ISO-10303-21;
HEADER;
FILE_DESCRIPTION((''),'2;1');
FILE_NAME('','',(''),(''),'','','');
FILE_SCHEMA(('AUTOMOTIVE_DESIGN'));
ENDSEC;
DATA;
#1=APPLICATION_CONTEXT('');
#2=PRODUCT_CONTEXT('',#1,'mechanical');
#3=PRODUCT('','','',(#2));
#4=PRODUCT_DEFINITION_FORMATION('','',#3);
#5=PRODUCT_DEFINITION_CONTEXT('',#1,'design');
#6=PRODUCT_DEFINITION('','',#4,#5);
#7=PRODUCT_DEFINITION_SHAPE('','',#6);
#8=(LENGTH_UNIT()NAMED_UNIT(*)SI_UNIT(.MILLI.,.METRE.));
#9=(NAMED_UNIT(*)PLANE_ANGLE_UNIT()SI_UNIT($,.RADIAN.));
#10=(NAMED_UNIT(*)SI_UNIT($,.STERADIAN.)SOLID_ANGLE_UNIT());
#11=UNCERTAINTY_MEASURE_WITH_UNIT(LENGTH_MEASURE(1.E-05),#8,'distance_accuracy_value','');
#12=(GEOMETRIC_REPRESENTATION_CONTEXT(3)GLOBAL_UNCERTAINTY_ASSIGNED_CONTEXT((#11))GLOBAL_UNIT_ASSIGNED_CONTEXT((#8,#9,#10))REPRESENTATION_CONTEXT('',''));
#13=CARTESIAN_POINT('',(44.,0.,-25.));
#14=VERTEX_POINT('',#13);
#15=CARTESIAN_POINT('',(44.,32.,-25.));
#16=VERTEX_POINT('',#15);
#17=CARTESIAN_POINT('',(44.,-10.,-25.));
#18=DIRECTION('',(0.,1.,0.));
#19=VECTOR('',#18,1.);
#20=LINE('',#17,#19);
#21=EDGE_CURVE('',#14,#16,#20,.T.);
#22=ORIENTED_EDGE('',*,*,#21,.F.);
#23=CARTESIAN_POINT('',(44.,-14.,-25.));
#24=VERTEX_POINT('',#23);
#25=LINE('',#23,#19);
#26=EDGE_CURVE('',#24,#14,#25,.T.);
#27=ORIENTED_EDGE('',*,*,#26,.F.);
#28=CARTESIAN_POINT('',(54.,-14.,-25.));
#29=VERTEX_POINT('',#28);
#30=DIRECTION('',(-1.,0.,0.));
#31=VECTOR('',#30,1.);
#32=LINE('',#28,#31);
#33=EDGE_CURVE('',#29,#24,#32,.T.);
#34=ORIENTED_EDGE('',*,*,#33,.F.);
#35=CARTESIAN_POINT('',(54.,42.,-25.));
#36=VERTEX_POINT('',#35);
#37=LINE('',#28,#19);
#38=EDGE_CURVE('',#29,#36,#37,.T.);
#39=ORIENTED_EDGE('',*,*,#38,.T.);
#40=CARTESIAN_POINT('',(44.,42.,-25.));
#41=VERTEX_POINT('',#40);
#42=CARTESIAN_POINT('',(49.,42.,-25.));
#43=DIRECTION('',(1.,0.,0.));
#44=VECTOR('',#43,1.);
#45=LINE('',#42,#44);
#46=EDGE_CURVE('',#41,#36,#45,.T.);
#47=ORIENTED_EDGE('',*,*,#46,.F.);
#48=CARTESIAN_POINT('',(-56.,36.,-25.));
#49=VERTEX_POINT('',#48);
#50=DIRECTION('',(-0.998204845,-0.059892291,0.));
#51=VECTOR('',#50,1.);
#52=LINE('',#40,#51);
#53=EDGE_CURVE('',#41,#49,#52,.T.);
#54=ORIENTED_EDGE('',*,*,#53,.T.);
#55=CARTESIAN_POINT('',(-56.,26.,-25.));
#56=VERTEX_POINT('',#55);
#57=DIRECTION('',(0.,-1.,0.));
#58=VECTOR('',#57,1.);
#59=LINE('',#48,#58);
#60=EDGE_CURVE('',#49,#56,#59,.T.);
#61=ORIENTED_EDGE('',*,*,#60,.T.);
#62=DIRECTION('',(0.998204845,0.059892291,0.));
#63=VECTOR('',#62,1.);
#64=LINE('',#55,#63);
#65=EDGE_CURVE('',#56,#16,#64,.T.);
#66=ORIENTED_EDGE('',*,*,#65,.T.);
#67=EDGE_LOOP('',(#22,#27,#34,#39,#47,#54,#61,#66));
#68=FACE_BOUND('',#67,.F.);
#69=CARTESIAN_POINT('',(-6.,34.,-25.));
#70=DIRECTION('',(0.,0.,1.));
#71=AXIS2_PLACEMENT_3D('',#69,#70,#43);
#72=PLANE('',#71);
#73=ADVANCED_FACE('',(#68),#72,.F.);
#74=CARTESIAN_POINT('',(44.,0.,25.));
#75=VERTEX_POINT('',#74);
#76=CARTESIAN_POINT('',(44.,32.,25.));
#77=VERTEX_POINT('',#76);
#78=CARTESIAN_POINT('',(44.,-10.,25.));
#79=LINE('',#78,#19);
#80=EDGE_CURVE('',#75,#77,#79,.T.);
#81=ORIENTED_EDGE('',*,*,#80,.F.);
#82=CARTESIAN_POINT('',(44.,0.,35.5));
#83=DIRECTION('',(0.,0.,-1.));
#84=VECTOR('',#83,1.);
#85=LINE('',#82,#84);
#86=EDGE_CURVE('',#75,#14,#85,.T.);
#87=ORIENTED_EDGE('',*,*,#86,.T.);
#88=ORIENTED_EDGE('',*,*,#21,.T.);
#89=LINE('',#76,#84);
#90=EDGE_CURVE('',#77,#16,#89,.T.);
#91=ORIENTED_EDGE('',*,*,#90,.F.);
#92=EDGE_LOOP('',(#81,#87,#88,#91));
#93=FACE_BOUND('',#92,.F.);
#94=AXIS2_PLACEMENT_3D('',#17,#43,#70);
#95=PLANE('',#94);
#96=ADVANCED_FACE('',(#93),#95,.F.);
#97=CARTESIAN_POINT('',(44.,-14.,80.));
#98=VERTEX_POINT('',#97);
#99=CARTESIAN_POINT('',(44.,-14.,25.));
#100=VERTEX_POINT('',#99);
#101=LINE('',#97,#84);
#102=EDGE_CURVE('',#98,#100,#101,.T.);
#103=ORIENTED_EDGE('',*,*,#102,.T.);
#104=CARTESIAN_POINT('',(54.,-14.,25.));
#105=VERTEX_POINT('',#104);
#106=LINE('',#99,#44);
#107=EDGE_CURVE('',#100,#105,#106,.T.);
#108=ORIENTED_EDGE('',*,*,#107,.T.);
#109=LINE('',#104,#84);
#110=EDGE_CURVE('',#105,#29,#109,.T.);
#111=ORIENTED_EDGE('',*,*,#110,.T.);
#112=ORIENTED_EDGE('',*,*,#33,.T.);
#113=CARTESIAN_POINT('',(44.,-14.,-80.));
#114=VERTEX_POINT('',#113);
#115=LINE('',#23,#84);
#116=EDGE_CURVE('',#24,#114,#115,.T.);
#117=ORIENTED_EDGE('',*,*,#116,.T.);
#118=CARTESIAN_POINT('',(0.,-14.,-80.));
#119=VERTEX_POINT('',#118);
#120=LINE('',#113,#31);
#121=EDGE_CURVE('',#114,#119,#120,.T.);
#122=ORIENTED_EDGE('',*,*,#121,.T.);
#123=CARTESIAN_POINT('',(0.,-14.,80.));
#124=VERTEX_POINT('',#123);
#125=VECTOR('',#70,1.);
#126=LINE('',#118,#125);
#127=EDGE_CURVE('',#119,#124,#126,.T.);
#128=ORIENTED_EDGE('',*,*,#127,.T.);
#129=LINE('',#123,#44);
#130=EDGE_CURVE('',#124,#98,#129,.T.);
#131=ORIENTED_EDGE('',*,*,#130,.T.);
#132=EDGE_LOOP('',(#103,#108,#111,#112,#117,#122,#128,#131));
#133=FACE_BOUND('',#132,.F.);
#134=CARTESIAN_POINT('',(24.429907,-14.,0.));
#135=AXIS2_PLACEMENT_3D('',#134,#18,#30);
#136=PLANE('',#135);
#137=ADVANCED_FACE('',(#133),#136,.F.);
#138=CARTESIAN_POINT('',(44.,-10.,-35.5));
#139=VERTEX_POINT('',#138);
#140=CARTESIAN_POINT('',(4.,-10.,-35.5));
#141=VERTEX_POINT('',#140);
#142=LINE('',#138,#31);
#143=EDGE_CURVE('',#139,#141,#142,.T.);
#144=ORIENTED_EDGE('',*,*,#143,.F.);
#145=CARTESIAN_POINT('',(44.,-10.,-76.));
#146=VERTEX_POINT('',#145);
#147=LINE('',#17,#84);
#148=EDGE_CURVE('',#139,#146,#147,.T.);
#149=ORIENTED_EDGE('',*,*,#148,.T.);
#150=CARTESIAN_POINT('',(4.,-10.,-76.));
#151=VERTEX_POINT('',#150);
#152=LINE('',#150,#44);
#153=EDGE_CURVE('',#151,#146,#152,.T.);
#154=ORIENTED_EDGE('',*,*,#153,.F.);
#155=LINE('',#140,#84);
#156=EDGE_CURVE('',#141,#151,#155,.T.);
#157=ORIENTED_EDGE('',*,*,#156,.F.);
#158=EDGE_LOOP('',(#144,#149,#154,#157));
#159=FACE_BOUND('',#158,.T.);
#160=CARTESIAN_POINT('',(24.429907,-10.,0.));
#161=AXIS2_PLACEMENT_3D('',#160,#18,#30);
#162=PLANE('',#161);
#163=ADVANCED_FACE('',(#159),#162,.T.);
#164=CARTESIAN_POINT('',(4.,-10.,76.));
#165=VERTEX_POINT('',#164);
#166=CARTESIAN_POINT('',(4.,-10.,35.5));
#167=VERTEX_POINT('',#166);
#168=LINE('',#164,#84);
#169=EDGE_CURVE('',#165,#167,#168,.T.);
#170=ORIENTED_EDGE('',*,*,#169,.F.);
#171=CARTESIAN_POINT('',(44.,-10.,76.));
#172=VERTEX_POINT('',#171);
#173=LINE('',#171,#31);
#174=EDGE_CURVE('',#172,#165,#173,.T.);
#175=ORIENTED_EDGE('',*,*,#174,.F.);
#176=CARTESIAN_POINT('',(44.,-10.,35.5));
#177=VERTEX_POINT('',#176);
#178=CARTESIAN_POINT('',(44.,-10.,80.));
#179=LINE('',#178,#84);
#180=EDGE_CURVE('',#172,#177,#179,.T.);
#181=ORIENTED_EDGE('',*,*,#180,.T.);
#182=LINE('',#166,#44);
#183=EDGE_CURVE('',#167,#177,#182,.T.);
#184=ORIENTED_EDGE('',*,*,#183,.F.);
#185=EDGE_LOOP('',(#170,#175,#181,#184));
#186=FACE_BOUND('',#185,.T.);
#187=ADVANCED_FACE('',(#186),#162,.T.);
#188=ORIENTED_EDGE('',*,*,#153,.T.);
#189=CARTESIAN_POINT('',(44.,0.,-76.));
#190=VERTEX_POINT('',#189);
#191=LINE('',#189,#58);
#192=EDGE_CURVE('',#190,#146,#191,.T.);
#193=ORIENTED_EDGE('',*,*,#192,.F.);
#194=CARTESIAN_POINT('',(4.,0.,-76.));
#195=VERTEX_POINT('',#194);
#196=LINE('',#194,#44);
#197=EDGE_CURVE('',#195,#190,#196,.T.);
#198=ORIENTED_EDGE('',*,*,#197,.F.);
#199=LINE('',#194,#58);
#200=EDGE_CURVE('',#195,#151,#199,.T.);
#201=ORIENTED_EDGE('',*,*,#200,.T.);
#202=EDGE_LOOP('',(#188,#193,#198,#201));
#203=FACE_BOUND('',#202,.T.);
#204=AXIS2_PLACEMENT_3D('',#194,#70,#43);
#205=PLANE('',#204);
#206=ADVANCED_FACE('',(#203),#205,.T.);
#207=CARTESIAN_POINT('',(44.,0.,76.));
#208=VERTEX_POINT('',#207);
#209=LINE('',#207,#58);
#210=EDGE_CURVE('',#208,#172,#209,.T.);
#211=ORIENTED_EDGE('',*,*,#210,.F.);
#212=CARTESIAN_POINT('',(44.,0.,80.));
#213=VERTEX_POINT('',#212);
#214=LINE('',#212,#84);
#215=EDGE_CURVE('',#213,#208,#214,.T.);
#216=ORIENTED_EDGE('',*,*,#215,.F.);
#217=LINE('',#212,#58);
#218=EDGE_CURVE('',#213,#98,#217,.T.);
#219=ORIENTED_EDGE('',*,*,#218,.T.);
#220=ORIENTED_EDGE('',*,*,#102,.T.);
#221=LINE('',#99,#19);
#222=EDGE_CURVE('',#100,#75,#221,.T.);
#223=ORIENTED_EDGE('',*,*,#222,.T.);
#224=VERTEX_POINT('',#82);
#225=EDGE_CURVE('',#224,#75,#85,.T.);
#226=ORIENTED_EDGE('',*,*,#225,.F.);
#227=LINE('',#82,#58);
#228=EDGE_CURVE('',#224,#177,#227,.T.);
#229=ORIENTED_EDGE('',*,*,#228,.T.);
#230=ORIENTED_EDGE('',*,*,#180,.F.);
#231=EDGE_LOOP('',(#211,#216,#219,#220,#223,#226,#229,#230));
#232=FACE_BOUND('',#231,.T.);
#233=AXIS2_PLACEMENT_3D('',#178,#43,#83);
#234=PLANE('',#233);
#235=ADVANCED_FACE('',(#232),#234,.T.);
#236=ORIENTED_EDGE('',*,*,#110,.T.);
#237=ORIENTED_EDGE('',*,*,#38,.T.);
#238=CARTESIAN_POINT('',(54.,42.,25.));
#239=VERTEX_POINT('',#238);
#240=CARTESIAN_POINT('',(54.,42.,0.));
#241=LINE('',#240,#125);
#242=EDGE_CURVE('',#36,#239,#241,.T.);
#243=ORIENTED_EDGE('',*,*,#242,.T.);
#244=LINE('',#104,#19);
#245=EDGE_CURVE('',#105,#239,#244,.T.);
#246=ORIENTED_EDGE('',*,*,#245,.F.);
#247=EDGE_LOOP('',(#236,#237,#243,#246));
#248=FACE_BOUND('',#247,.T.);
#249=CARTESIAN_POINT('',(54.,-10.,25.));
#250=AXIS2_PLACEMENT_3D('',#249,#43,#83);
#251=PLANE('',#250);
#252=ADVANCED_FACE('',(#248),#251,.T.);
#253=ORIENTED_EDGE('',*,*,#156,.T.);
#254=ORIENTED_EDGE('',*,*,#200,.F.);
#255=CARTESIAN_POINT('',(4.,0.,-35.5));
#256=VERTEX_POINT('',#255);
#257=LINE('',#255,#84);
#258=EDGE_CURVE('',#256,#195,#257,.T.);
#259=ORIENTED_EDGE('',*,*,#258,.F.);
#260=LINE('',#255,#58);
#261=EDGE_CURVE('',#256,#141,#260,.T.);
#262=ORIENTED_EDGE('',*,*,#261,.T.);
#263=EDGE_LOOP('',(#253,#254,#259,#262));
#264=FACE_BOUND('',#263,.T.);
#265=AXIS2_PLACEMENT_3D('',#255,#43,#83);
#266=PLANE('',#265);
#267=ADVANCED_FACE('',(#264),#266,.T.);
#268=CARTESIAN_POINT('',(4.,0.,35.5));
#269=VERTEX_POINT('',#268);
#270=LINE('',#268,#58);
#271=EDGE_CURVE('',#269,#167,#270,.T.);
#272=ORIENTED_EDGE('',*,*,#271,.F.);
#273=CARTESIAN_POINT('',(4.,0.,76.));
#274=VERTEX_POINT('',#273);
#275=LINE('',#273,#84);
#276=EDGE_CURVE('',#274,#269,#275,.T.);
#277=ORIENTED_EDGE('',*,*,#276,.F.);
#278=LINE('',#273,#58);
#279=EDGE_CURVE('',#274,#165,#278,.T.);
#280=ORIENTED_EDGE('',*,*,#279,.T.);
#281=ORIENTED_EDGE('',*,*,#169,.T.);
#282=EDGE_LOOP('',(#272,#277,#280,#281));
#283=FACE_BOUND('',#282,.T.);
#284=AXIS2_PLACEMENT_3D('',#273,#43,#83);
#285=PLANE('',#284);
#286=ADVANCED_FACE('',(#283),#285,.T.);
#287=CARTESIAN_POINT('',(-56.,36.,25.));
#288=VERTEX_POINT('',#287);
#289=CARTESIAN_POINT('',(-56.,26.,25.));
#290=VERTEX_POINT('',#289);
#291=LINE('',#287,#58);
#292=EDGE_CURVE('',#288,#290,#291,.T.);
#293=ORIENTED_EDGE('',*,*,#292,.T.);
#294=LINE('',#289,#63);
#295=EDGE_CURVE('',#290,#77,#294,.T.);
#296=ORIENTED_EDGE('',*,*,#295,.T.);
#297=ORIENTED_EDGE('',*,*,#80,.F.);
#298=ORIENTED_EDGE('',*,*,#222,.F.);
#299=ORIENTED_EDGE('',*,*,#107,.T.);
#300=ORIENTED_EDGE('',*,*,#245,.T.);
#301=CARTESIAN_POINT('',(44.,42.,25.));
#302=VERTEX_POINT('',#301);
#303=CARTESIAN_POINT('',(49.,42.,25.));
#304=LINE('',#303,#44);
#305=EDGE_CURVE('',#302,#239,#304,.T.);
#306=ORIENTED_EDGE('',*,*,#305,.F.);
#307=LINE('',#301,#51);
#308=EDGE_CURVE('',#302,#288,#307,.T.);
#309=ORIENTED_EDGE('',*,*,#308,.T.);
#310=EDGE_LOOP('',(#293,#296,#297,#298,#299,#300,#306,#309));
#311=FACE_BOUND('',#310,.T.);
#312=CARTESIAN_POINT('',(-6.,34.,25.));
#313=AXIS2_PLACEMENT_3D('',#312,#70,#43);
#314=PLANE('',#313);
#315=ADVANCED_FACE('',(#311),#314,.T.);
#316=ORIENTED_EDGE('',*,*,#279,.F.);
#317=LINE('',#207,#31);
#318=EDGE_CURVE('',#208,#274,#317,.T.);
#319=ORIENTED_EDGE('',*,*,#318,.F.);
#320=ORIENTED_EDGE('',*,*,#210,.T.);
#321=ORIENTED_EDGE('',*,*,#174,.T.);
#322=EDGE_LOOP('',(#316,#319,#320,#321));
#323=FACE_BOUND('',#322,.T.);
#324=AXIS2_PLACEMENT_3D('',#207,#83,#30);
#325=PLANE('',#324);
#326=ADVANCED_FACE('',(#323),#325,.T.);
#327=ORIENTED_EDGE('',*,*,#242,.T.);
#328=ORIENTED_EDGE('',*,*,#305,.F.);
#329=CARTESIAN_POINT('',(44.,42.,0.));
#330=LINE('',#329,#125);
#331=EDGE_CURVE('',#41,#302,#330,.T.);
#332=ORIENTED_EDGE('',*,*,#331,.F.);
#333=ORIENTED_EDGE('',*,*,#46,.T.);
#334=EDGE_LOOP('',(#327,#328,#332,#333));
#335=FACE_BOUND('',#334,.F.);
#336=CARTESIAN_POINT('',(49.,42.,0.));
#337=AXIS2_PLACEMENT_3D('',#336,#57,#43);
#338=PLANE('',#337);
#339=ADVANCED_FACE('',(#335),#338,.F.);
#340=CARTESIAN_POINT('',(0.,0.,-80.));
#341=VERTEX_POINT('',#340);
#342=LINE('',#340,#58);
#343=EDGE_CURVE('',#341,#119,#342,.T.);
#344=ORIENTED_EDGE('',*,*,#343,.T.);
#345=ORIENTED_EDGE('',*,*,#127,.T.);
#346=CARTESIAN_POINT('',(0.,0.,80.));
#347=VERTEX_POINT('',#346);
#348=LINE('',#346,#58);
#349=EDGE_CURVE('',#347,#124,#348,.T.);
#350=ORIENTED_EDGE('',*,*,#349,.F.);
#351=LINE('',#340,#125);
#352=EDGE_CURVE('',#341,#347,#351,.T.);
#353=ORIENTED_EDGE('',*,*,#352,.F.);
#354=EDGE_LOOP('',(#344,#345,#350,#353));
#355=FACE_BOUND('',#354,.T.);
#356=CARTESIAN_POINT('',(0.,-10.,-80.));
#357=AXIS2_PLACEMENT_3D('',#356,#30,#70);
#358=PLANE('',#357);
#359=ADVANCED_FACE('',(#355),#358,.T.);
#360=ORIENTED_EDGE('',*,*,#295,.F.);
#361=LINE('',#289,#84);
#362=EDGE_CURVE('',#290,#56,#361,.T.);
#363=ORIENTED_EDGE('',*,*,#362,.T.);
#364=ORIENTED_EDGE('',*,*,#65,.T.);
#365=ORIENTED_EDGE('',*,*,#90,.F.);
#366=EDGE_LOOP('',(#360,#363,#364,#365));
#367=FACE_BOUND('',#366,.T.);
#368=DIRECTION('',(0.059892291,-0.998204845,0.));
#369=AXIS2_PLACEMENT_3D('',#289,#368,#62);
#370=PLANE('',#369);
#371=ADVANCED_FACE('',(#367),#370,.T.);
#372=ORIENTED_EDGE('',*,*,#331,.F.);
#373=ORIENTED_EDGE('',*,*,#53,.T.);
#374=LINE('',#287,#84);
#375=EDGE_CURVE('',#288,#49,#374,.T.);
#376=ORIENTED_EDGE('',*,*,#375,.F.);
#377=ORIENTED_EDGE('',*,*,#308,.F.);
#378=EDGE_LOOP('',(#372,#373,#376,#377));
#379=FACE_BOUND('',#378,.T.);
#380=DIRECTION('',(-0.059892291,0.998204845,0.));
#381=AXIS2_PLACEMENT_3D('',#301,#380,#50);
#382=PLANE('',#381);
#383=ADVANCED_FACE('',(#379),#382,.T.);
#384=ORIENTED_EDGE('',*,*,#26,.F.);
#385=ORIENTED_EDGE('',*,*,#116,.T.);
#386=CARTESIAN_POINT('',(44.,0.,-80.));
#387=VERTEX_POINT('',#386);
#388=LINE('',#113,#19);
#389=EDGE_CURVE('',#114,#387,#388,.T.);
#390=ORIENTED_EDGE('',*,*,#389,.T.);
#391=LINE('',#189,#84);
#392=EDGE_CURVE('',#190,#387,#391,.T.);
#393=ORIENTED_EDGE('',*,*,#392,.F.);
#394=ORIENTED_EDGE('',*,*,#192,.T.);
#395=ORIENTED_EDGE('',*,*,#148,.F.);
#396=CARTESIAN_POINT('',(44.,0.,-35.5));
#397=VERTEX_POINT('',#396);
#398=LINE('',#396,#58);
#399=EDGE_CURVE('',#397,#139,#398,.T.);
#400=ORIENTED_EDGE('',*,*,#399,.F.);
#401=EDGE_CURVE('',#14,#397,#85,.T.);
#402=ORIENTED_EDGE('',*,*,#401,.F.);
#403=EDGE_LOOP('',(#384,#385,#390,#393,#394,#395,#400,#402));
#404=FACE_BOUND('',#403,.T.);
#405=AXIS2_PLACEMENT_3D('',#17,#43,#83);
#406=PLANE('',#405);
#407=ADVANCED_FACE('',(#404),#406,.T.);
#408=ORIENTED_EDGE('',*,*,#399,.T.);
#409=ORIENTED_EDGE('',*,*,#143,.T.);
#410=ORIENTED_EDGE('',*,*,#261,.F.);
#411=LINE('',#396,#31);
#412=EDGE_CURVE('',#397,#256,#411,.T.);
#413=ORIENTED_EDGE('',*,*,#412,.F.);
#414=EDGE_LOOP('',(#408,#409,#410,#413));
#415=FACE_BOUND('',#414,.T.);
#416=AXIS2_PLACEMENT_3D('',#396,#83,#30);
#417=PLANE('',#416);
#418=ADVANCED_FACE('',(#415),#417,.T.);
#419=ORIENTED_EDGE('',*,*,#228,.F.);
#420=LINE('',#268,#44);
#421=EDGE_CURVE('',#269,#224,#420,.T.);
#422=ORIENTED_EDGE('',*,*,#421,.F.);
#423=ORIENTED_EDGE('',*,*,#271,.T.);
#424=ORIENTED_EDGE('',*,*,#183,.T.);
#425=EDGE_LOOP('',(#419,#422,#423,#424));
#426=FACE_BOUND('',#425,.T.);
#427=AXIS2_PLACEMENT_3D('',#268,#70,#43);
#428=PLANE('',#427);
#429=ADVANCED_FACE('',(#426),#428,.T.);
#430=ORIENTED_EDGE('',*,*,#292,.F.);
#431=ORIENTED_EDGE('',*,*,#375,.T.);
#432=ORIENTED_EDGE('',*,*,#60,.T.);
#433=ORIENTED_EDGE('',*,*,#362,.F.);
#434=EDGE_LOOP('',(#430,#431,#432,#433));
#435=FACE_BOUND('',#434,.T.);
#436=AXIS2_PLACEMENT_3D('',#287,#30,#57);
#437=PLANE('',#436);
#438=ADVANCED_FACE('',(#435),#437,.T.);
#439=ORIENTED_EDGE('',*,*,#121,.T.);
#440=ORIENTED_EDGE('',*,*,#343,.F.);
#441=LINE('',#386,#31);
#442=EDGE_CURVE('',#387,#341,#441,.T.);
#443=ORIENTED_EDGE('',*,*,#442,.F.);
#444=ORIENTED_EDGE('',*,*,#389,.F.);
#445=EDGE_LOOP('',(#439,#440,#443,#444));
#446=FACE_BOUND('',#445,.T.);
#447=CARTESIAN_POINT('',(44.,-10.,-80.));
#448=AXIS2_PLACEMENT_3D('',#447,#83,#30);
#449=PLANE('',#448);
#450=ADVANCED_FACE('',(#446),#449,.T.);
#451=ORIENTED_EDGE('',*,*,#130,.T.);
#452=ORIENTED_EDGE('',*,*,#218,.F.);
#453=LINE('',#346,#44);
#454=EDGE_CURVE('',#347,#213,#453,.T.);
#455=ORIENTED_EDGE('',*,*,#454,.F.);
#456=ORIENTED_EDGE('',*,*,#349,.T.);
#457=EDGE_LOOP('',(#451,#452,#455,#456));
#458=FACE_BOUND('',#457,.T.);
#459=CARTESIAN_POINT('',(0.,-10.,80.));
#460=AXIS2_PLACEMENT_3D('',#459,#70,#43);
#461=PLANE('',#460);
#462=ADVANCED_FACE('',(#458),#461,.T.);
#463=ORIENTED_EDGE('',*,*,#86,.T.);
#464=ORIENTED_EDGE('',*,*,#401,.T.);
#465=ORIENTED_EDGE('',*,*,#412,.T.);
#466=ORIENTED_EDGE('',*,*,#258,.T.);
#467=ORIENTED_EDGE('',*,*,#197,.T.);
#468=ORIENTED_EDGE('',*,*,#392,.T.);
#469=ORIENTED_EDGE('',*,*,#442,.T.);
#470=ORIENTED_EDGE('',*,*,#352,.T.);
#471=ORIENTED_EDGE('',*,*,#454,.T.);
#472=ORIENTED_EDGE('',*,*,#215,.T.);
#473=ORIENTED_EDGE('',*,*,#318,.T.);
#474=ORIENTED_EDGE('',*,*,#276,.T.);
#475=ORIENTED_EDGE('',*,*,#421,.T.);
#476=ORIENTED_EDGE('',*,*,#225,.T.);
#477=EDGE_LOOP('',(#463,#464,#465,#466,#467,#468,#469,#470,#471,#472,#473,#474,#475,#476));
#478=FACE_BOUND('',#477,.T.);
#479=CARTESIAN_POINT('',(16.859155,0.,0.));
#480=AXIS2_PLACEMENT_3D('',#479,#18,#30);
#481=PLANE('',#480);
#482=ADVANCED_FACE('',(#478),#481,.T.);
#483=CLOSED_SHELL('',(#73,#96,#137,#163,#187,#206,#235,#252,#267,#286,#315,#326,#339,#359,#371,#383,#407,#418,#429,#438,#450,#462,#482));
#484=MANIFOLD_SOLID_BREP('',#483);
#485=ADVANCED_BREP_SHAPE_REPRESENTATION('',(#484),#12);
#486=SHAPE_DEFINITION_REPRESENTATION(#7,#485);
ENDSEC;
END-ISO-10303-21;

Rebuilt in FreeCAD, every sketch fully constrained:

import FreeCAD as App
import Part
import Sketcher


def add_polygon(sketch, points):
    """Adds a closed chain of lines whose ends are joined by coincident constraints."""
    first, n = sketch.GeometryCount, len(points)
    for a, b in zip(points, points[1:] + points[:1]):
        sketch.addGeometry(Part.LineSegment(App.Vector(*a, 0), App.Vector(*b, 0)), False)
    for i in range(n):
        sketch.addConstraint(Sketcher.Constraint("Coincident", first + i, 2, first + (i + 1) % n, 1))

doc = App.newDocument("Part")
body = doc.addObject("PartDesign::Body", "Body")

sketch1 = doc.addObject("Sketcher::SketchObject", "Sketch")
body.addObject(sketch1)
sketch1.AttachmentSupport = (doc.XZ_Plane, [""])
sketch1.MapMode = "FlatFace"
add_polygon(sketch1, [(4, 76), (44, 76), (44, 80), (0, 80), (0, -80), (44, -80), (44, -76), (4, -76), (4, -35.5), (44, -35.5), (44, 35.5), (4, 35.5)])
sketch1.addConstraint([
    Sketcher.Constraint("Horizontal", 0),
    Sketcher.Constraint("Vertical", 1),
    Sketcher.Constraint("Horizontal", 2),
    Sketcher.Constraint("Vertical", 3),
    Sketcher.Constraint("Horizontal", 4),
    Sketcher.Constraint("Vertical", 5),
    Sketcher.Constraint("Horizontal", 6),
    Sketcher.Constraint("Vertical", 7),
    Sketcher.Constraint("Horizontal", 8),
    Sketcher.Constraint("Vertical", 9),
    Sketcher.Constraint("Horizontal", 10),
    Sketcher.Constraint("Vertical", 11),
    Sketcher.Constraint("Symmetric", 2, 2, 3, 2, -1, 1),
    Sketcher.Constraint("Symmetric", 0, 2, 5, 2, -1),
    Sketcher.Constraint("Symmetric", 7, 2, 10, 2, -1),
    Sketcher.Constraint("Vertical", 5, 2, 8, 2),
    Sketcher.Constraint("DistanceX", 0, 1, 0, 2, 40.0),
    Sketcher.Constraint("DistanceX", 2, 2, 2, 1, 44.0),
    Sketcher.Constraint("DistanceY", 1, 1, 1, 2, 4.0),
    Sketcher.Constraint("DistanceY", 3, 2, 3, 1, 160.0),
    Sketcher.Constraint("DistanceY", 9, 1, 9, 2, 71.0),
])
pad1 = doc.addObject("PartDesign::Pad", "Pad")
body.addObject(pad1)
pad1.Profile = sketch1
pad1.Length = 10

sketch2 = doc.addObject("Sketcher::SketchObject", "Sketch001")
body.addObject(sketch2)
sketch2.AttachmentSupport = (doc.XZ_Plane, [""])
sketch2.MapMode = "FlatFace"
sketch2.AttachmentOffset = App.Placement(App.Vector(0, 0, 10), App.Rotation())
add_polygon(sketch2, [(44, 25), (44, -25), (54, -25), (54, 25)])
sketch2.addConstraint([
    Sketcher.Constraint("Vertical", 0),
    Sketcher.Constraint("Horizontal", 1),
    Sketcher.Constraint("Vertical", 2),
    Sketcher.Constraint("Horizontal", 3),
    Sketcher.Constraint("DistanceX", 1, 1, 1, 2, 10.0),
    Sketcher.Constraint("DistanceY", 0, 2, 0, 1, 50.0),
    Sketcher.Constraint("DistanceX", -1, 1, 0, 2, 44.0),
    Sketcher.Constraint("DistanceY", 0, 2, -1, 1, 25.0),
])
pad2 = doc.addObject("PartDesign::Pad", "Pad001")
body.addObject(pad2)
pad2.Profile = sketch2
pad2.Length = 52
pad2.Reversed = True

sketch3 = doc.addObject("Sketcher::SketchObject", "Sketch002")
body.addObject(sketch3)
sketch3.AttachmentSupport = (doc.XZ_Plane, [""])
sketch3.MapMode = "FlatFace"
sketch3.AttachmentOffset = App.Placement(App.Vector(0, 0, 10), App.Rotation())
add_polygon(sketch3, [(44, 25), (44, 80), (0, 80), (0, -80), (44, -80), (44, -25), (54, -25), (54, 25)])
sketch3.addConstraint([
    Sketcher.Constraint("Vertical", 0),
    Sketcher.Constraint("Horizontal", 1),
    Sketcher.Constraint("Vertical", 2),
    Sketcher.Constraint("Horizontal", 3),
    Sketcher.Constraint("Vertical", 4),
    Sketcher.Constraint("Horizontal", 5),
    Sketcher.Constraint("Vertical", 6),
    Sketcher.Constraint("Horizontal", 7),
    Sketcher.Constraint("Symmetric", 1, 2, 2, 2, -1, 1),
    Sketcher.Constraint("Symmetric", 4, 2, 7, 2, -1),
    Sketcher.Constraint("DistanceX", 1, 2, 1, 1, 44.0),
    Sketcher.Constraint("DistanceX", 5, 1, 5, 2, 10.0),
    Sketcher.Constraint("DistanceY", 0, 1, 0, 2, 55.0),
    Sketcher.Constraint("DistanceY", 2, 2, 2, 1, 160.0),
])
pad3 = doc.addObject("PartDesign::Pad", "Pad002")
body.addObject(pad3)
pad3.Profile = sketch3
pad3.Length = 4

sketch4 = doc.addObject("Sketcher::SketchObject", "Sketch003")
body.addObject(sketch4)
sketch4.AttachmentSupport = (doc.XY_Plane, [""])
sketch4.MapMode = "FlatFace"
sketch4.AttachmentOffset = App.Placement(App.Vector(0, 0, 25), App.Rotation())
add_polygon(sketch4, [(44, 42), (-56, 36), (-56, 26), (44, 32)])
sketch4.addConstraint([
    Sketcher.Constraint("Vertical", 1),
    Sketcher.Constraint("Vertical", 3),
    Sketcher.Constraint("Parallel", 0, 2),
    Sketcher.Constraint("DistanceY", 1, 2, 1, 1, 10.0),
    Sketcher.Constraint("DistanceX", 0, 2, -1, 1, 56.0),
    Sketcher.Constraint("DistanceY", -1, 1, 0, 2, 36.0),
    Sketcher.Constraint("DistanceX", -1, 1, 2, 2, 44.0),
    Sketcher.Constraint("DistanceY", -1, 1, 2, 2, 32.0),
])
pad4 = doc.addObject("PartDesign::Pad", "Pad003")
body.addObject(pad4)
pad4.Profile = sketch4
pad4.Length = 50
pad4.Reversed = True

doc.recompute()
